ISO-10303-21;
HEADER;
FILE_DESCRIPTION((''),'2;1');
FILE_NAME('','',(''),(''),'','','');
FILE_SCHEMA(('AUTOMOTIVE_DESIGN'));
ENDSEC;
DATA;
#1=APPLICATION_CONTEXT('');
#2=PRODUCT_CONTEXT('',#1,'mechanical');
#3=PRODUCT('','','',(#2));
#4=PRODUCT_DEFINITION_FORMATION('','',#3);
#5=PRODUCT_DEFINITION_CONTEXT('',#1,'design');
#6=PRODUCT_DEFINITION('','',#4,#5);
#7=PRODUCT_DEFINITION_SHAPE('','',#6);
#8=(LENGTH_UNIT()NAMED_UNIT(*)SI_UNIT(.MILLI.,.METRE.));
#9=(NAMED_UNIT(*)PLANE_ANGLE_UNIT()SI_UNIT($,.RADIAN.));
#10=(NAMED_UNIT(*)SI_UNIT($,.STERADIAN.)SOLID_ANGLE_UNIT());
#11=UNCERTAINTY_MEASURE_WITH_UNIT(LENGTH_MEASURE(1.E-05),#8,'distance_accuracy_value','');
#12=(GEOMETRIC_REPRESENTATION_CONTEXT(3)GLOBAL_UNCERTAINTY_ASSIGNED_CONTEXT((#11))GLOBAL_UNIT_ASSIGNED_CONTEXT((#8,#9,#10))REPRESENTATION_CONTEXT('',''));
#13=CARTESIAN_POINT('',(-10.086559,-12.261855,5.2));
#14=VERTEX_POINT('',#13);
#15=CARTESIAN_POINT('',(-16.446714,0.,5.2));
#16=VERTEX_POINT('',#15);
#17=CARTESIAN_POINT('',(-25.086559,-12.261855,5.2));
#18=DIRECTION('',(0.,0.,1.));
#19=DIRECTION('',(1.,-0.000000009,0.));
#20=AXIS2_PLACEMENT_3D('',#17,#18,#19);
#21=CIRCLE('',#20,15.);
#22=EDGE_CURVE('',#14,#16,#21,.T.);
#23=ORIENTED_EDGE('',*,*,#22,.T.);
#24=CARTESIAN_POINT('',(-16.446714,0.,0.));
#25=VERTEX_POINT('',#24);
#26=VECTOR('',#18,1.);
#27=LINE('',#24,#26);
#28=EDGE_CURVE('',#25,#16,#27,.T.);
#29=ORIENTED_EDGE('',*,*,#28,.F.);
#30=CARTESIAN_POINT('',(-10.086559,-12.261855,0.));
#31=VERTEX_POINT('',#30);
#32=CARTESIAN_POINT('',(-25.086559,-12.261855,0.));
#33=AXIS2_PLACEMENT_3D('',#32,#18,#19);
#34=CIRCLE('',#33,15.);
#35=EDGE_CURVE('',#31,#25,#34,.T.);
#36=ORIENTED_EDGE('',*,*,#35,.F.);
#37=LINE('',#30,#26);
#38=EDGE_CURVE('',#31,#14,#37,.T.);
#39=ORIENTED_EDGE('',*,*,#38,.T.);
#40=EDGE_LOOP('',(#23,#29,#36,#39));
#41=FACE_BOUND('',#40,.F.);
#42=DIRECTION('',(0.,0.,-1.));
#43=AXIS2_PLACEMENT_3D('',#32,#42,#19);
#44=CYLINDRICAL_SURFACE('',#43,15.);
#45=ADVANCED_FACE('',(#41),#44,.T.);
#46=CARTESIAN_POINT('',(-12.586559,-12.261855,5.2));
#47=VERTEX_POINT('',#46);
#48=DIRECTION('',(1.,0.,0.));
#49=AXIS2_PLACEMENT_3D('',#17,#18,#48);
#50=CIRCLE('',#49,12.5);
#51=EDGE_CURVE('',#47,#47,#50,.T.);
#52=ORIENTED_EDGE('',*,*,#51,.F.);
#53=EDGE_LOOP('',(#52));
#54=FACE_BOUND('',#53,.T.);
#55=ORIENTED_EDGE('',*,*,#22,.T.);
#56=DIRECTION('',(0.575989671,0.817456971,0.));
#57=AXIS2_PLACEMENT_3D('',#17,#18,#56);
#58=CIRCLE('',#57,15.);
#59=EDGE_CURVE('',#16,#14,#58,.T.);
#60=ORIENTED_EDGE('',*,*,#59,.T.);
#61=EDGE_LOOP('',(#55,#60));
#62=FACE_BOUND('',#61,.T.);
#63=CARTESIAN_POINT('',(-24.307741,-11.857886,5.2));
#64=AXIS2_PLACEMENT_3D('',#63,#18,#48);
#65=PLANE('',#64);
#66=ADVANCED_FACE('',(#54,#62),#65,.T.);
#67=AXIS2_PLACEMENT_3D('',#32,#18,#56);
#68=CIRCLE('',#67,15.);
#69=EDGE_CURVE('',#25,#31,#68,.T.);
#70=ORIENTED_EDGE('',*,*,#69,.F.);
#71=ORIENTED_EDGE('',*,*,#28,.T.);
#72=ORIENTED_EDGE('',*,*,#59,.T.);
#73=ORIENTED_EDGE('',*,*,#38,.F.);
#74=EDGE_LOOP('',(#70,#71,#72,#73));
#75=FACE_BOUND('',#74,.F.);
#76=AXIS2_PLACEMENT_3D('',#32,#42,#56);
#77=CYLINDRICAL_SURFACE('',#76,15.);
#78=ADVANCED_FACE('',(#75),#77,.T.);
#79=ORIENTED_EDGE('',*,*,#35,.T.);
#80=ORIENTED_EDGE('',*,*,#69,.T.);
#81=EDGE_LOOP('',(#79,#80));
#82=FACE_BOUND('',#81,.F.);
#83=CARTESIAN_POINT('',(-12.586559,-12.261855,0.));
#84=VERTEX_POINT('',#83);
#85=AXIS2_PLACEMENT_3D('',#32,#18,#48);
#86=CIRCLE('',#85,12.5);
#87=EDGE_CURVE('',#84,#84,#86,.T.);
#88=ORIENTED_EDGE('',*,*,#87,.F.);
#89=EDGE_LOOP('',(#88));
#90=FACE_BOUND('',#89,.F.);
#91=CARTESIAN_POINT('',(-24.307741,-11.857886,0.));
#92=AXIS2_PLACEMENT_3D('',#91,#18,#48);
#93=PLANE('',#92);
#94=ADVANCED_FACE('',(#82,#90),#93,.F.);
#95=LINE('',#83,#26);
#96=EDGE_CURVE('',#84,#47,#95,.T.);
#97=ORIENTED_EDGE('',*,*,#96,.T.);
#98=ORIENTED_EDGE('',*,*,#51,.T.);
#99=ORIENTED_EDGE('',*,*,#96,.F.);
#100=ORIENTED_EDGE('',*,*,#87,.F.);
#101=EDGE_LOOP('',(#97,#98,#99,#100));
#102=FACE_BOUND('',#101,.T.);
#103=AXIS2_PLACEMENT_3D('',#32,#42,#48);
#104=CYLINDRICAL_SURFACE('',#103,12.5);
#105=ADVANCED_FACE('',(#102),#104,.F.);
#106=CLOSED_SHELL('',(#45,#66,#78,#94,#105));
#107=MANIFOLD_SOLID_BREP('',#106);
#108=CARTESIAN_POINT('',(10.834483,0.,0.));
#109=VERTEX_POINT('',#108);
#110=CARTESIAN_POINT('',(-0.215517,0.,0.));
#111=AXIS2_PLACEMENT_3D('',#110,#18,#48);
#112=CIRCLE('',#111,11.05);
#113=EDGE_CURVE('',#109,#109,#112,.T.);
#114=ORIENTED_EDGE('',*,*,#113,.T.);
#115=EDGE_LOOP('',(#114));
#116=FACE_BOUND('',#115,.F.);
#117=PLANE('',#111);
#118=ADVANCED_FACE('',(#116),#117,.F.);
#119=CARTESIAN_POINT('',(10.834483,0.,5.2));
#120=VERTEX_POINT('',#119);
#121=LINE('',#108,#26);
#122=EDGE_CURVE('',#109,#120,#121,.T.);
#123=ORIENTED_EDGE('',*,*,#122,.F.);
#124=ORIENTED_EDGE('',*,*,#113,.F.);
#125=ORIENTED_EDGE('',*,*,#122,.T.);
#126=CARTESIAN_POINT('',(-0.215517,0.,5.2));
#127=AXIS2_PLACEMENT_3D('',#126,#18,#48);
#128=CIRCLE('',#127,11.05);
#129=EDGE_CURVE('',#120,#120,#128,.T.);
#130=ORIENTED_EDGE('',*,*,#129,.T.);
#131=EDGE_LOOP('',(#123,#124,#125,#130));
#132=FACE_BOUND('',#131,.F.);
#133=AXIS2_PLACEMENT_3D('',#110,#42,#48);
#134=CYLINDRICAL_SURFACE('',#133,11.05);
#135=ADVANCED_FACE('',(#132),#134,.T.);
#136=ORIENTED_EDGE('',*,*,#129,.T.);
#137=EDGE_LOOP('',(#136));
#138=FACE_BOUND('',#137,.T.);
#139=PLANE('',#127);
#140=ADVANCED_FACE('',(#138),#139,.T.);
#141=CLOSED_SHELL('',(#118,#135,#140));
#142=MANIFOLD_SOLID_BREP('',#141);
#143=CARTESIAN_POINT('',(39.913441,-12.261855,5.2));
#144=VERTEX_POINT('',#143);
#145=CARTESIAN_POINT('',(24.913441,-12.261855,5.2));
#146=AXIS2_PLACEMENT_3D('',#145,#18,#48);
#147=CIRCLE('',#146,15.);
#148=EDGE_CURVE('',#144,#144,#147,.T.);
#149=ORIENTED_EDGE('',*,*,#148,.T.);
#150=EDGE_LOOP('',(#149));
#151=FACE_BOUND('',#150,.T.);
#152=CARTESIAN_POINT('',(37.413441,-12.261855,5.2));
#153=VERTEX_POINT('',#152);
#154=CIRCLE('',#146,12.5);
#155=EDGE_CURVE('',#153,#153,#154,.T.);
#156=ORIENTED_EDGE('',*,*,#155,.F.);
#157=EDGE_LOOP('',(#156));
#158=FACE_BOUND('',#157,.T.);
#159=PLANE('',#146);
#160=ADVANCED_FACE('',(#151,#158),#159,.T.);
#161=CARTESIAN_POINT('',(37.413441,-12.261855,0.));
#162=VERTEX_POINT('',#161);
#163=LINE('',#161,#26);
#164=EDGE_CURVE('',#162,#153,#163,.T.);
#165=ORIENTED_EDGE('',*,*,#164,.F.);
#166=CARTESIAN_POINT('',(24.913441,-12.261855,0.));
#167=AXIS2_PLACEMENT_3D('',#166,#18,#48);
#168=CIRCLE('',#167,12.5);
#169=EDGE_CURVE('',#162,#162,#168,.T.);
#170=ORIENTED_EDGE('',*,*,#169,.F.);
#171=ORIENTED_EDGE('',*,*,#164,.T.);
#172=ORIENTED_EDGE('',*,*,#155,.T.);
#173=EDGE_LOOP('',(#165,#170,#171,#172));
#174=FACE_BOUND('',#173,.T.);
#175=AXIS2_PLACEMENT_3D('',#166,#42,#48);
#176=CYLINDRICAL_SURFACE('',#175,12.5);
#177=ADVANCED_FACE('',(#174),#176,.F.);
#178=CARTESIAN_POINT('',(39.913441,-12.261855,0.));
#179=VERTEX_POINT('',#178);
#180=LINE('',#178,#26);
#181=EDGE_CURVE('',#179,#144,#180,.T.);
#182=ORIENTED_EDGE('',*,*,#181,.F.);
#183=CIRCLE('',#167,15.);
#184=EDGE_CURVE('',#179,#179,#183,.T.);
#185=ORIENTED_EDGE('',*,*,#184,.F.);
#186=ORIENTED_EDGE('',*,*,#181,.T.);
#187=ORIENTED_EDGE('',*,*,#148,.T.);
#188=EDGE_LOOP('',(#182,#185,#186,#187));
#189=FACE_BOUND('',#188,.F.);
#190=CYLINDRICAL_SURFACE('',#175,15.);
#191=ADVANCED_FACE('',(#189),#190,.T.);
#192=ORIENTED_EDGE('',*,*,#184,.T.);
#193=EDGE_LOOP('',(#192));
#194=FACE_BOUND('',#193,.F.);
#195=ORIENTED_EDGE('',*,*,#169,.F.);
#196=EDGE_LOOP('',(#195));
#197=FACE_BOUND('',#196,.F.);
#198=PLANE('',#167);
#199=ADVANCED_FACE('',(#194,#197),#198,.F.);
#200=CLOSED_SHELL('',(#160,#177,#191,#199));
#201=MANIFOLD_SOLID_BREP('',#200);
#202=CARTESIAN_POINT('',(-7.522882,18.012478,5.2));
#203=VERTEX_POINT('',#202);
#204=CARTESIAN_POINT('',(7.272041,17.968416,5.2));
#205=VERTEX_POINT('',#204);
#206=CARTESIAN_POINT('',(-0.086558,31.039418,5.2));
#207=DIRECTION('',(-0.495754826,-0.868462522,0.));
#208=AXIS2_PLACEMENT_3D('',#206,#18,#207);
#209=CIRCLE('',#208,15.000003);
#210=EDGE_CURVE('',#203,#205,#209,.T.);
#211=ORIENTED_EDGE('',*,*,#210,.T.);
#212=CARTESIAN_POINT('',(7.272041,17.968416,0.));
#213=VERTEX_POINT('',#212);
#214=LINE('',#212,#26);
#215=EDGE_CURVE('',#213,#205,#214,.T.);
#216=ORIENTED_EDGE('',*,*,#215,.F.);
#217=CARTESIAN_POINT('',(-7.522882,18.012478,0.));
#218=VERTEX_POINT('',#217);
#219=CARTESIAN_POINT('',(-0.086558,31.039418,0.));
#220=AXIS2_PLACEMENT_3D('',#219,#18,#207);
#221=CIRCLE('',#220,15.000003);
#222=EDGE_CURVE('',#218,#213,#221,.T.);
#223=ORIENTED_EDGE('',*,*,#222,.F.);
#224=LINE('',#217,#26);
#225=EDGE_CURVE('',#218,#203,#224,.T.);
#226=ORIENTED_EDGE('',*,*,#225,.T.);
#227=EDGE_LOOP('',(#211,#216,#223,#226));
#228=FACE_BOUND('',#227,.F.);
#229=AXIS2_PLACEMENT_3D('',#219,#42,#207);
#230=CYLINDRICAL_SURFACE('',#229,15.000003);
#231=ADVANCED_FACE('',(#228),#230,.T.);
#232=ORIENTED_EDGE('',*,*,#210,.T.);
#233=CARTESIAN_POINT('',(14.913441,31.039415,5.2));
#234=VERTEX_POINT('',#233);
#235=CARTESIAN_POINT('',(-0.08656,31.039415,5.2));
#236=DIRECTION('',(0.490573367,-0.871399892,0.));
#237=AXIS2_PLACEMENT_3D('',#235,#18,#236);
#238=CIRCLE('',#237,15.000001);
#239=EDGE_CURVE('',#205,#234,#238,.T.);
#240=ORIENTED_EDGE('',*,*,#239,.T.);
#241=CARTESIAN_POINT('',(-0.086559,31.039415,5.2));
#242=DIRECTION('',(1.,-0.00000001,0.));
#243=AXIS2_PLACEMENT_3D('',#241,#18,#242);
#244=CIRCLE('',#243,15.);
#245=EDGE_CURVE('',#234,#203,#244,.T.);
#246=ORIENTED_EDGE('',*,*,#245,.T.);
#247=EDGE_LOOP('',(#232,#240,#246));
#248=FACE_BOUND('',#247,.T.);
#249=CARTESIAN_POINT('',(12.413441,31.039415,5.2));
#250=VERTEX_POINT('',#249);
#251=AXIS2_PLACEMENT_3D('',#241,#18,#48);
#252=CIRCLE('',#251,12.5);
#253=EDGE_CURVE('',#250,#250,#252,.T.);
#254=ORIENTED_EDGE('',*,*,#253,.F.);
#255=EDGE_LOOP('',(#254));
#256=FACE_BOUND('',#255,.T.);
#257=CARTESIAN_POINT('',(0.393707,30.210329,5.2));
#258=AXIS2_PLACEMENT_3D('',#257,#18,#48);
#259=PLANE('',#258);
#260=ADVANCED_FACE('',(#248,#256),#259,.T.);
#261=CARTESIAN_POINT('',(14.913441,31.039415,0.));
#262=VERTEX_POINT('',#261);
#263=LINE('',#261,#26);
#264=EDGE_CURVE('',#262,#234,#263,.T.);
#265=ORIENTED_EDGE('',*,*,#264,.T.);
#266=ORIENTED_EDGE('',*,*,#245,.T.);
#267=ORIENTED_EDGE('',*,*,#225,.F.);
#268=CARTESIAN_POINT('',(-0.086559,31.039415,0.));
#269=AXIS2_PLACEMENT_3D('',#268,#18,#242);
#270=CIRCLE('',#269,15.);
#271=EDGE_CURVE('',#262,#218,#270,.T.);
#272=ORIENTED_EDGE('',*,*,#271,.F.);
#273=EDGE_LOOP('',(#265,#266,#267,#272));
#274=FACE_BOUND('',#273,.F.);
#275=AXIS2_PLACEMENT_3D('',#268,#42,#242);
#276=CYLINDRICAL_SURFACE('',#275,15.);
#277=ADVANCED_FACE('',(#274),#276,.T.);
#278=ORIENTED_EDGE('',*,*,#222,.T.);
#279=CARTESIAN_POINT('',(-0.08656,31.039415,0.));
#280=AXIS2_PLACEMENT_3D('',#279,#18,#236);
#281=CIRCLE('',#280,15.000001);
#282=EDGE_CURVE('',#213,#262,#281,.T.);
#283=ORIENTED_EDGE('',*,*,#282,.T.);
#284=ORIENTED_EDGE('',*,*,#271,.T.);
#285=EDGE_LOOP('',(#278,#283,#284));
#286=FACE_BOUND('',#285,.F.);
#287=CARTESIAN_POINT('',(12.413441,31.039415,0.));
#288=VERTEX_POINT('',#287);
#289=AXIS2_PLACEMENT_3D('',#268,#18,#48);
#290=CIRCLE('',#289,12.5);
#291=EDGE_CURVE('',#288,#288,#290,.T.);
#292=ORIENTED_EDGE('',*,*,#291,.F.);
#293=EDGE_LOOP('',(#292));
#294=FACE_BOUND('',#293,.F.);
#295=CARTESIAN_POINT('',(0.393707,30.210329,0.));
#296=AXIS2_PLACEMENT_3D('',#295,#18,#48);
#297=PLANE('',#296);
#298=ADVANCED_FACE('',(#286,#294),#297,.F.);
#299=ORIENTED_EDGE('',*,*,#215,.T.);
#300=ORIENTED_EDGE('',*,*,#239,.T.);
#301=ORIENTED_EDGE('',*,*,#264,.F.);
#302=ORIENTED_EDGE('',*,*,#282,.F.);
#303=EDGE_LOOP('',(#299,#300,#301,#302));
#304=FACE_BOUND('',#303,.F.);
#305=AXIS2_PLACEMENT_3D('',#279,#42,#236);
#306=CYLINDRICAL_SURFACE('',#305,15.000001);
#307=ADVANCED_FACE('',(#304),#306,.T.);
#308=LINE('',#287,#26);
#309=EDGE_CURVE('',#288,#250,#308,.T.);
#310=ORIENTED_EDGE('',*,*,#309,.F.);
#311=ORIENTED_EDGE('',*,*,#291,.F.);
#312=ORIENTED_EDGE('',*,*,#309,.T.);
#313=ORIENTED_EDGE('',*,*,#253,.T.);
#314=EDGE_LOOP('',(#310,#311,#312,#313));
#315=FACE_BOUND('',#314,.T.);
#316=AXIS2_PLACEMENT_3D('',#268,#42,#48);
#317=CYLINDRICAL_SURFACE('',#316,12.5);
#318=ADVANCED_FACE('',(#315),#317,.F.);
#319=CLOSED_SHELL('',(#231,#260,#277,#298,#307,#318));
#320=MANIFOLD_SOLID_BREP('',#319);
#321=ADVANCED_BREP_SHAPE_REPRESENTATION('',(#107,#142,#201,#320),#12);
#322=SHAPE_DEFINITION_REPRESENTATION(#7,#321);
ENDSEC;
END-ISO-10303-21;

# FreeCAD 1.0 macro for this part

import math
import FreeCAD as App
import Part
import Sketcher
from FreeCAD import Vector
Q = App.Units.Quantity

doc = App.newDocument("Part")
body = doc.addObject("PartDesign::Body", "Body")
body.AllowCompound = True

sketch1 = doc.addObject("Sketcher::SketchObject", "Sketch")
body.addObject(sketch1)
sketch1.AttachmentSupport = (doc.XY_Plane, [""])
sketch1.MapMode = "FlatFace"
sketch1.addGeometry(Part.ArcOfCircle(Part.Circle(Vector(0, 31, 0), Vector(0, 0, 1), 15), math.radians(-61), math.radians(0)), False)
sketch1.addGeometry(Part.ArcOfCircle(Part.Circle(Vector(0, 31, 0), Vector(0, 0, 1), 15), math.radians(0), math.radians(240)), False)
sketch1.addGeometry(Part.ArcOfCircle(Part.Circle(Vector(0, 31, 0), Vector(0, 0, 1), 15), math.radians(-120), math.radians(-61)), False)
sketch1.addGeometry(Part.Circle(Vector(0, 31, 0), Vector(0, 0, 1), 12), False)
sketch1.addGeometry(Part.ArcOfCircle(Part.Circle(Vector(-25, -12, 0), Vector(0, 0, 1), 15), math.radians(0), math.radians(55)), False)
sketch1.addGeometry(Part.ArcOfCircle(Part.Circle(Vector(-25, -12, 0), Vector(0, 0, 1), 15), math.radians(55), math.radians(360)), False)
sketch1.addGeometry(Part.Circle(Vector(-25, -12, 0), Vector(0, 0, 1), 12), False)
sketch1.addGeometry(Part.Circle(Vector(25, -12, 0), Vector(0, 0, 1), 15), False)
sketch1.addGeometry(Part.Circle(Vector(25, -12, 0), Vector(0, 0, 1), 12), False)
sketch1.addGeometry(Part.Circle(Vector(0, 0, 0), Vector(0, 0, 1), 11), False)
sketch1.addConstraint(Sketcher.Constraint("Tangent", 0, 2, 1, 1))
sketch1.addConstraint(Sketcher.Constraint("Tangent", 1, 2, 2, 1))
sketch1.addConstraint(Sketcher.Constraint("Tangent", 2, 2, 0, 1))
sketch1.addConstraint(Sketcher.Constraint("Tangent", 4, 1, 5, 2))
sketch1.addConstraint(Sketcher.Constraint("Coincident", 5, 1, 4, 2))
sketch1.addConstraint(Sketcher.Constraint("Coincident", 3, 3, 0, 3))
sketch1.addConstraint(Sketcher.Constraint("Coincident", 6, 3, 4, 3))
sketch1.addConstraint(Sketcher.Constraint("Coincident", 8, 3, 7, 3))
sketch1.addConstraint(Sketcher.Constraint("Equal", 1, 4))
sketch1.addConstraint(Sketcher.Constraint("Equal", 3, 6))
sketch1.addConstraint(Sketcher.Constraint("Equal", 5, 7))
sketch1.addConstraint(Sketcher.Constraint("Equal", 6, 8))
sketch1.addConstraint(Sketcher.Constraint("PointOnObject", 9, 3, -1))
sketch1.addConstraint(Sketcher.Constraint("PointOnObject", 5, 1, -1))
sketch1.addConstraint(Sketcher.Constraint("Horizontal", 6, 3, 7, 3))
sketch1.addConstraint(Sketcher.Constraint("Horizontal", 3, 3, 0, 2))
sketch1.addConstraint(Sketcher.Constraint("Horizontal", 8, 3, 4, 1))
sketch1.addConstraint(Sketcher.Constraint("Diameter", 3, Q("25 mm")))
sketch1.addConstraint(Sketcher.Constraint("Diameter", 7, Q("30 mm")))
sketch1.addConstraint(Sketcher.Constraint("Diameter", 9, Q("22.1 mm")))
sketch1.addConstraint(Sketcher.Constraint("DistanceX", 4, 3, 0, 3, Q("25 mm")))
sketch1.addConstraint(Sketcher.Constraint("DistanceX", 3, 3, 7, 3, Q("25 mm")))
sketch1.addConstraint(Sketcher.Constraint("DistanceY", 2, 2, 3, 3, Q("13.070999 mm")))
sketch1.addConstraint(Sketcher.Constraint("DistanceX", 0, 3, -1, 1, Q("0.08656 mm")))
sketch1.addConstraint(Sketcher.Constraint("DistanceY", -1, 1, 2, 3, Q("31.039418 mm")))
sketch1.addConstraint(Sketcher.Constraint("DistanceX", 1, 2, -1, 1, Q("7.522882 mm")))
sketch1.addConstraint(Sketcher.Constraint("DistanceY", 4, 3, 0, 3, Q("43.30127 mm")))
sketch1.addConstraint(Sketcher.Constraint("DistanceX", 4, 1, 9, 3, Q("9.871042 mm")))
pad1 = doc.addObject("PartDesign::Pad", "Pad")
body.addObject(pad1)
pad1.Profile = sketch1
pad1.Length = 5.2

doc.recompute()
